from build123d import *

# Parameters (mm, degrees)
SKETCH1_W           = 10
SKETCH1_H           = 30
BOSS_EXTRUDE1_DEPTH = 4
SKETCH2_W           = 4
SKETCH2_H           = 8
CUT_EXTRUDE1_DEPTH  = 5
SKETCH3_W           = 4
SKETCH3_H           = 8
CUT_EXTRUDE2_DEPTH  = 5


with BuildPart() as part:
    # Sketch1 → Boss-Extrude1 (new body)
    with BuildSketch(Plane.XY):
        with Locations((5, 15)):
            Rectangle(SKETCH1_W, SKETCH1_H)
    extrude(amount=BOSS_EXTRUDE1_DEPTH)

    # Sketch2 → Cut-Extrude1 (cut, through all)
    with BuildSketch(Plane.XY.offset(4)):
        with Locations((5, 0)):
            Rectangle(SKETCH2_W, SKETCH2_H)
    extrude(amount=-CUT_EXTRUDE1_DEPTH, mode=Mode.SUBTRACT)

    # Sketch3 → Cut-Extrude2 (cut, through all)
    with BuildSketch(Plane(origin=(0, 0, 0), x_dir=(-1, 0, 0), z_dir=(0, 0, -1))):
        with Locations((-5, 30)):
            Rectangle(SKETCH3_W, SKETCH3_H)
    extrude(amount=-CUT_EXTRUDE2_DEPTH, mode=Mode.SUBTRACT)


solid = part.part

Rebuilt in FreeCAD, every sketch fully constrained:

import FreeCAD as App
import Part
import Sketcher
from FreeCAD import Vector
Q = App.Units.Quantity

doc = App.newDocument("Part")
body = doc.addObject("PartDesign::Body", "Body")

# Sketch on XY plane
sketch1 = body.newObject("Sketcher::SketchObject", "Sketch")
sketch1.AttachmentSupport = (doc.getObject("XY_Plane"), [""])
sketch1.MapMode = "FlatFace"
sketch1.addGeometry([
    Part.LineSegment(Vector(0, 30, 0), Vector(0, 0, 0)),
    Part.LineSegment(Vector(0, 0, 0), Vector(10, 0, 0)),
    Part.LineSegment(Vector(10, 0, 0), Vector(10, 30, 0)),
    Part.LineSegment(Vector(10, 30, 0), Vector(0, 30, 0)),
], False)
sketch1.addConstraint([
    Sketcher.Constraint("Coincident", 0, 2, 1, 1),
    Sketcher.Constraint("Coincident", 1, 2, 2, 1),
    Sketcher.Constraint("Coincident", 2, 2, 3, 1),
    Sketcher.Constraint("Coincident", 3, 2, 0, 1),
    Sketcher.Constraint("Vertical", 0),
    Sketcher.Constraint("Horizontal", 1),
    Sketcher.Constraint("Vertical", 2),
    Sketcher.Constraint("Horizontal", 3),
    Sketcher.Constraint("Coincident", 0, 2, -1, 1),
    Sketcher.Constraint("DistanceX", 1, 1, 1, 2, Q("10 mm")),
    Sketcher.Constraint("DistanceY", 0, 2, 0, 1, Q("30 mm")),
])
pad1 = body.newObject("PartDesign::Pad", "Pad")
pad1.Profile = sketch1
pad1.Length = 4

# Sketch on XY plane
sketch2 = body.newObject("Sketcher::SketchObject", "Sketch001")
sketch2.AttachmentSupport = (doc.getObject("XY_Plane"), [""])
sketch2.MapMode = "FlatFace"
sketch2.AttachmentOffset = App.Placement(Vector(0, 0, 4), App.Rotation())
sketch2.addGeometry([
    Part.LineSegment(Vector(3, 4, 0), Vector(3, -4, 0)),
    Part.LineSegment(Vector(3, -4, 0), Vector(7, -4, 0)),
    Part.LineSegment(Vector(7, -4, 0), Vector(7, 4, 0)),
    Part.LineSegment(Vector(7, 4, 0), Vector(3, 4, 0)),
], False)
sketch2.addConstraint([
    Sketcher.Constraint("Coincident", 0, 2, 1, 1),
    Sketcher.Constraint("Coincident", 1, 2, 2, 1),
    Sketcher.Constraint("Coincident", 2, 2, 3, 1),
    Sketcher.Constraint("Coincident", 3, 2, 0, 1),
    Sketcher.Constraint("Vertical", 0),
    Sketcher.Constraint("Horizontal", 1),
    Sketcher.Constraint("Vertical", 2),
    Sketcher.Constraint("Horizontal", 3),
    Sketcher.Constraint("DistanceX", 1, 1, 1, 2, Q("4 mm")),
    Sketcher.Constraint("DistanceY", 0, 2, 0, 1, Q("8 mm")),
    Sketcher.Constraint("DistanceX", -1, 1, 0, 2, Q("3 mm")),
    Sketcher.Constraint("DistanceY", 0, 2, -1, 1, Q("4 mm")),
])
pocket1 = body.newObject("PartDesign::Pocket", "Pocket")
pocket1.Profile = sketch2
pocket1.Type = "ThroughAll"

# Sketch on XY plane
sketch3 = body.newObject("Sketcher::SketchObject", "Sketch002")
sketch3.AttachmentSupport = (doc.getObject("XY_Plane"), [""])
sketch3.MapMode = "FlatFace"
sketch3.addGeometry([
    Part.LineSegment(Vector(7, 34, 0), Vector(7, 26, 0)),
    Part.LineSegment(Vector(7, 26, 0), Vector(3, 26, 0)),
    Part.LineSegment(Vector(3, 26, 0), Vector(3, 34, 0)),
    Part.LineSegment(Vector(3, 34, 0), Vector(7, 34, 0)),
], False)
sketch3.addConstraint([
    Sketcher.Constraint("Coincident", 0, 2, 1, 1),
    Sketcher.Constraint("Coincident", 1, 2, 2, 1),
    Sketcher.Constraint("Coincident", 2, 2, 3, 1),
    Sketcher.Constraint("Coincident", 3, 2, 0, 1),
    Sketcher.Constraint("Vertical", 0),
    Sketcher.Constraint("Horizontal", 1),
    Sketcher.Constraint("Vertical", 2),
    Sketcher.Constraint("Horizontal", 3),
    Sketcher.Constraint("DistanceX", 1, 2, 1, 1, Q("4 mm")),
    Sketcher.Constraint("DistanceY", 0, 2, 0, 1, Q("8 mm")),
    Sketcher.Constraint("DistanceX", -1, 1, 0, 2, Q("7 mm")),
    Sketcher.Constraint("DistanceY", -1, 1, 0, 2, Q("26 mm")),
])
pocket2 = body.newObject("PartDesign::Pocket", "Pocket001")
pocket2.Profile = sketch3
pocket2.Type = "ThroughAll"
pocket2.Reversed = True

doc.recompute()
